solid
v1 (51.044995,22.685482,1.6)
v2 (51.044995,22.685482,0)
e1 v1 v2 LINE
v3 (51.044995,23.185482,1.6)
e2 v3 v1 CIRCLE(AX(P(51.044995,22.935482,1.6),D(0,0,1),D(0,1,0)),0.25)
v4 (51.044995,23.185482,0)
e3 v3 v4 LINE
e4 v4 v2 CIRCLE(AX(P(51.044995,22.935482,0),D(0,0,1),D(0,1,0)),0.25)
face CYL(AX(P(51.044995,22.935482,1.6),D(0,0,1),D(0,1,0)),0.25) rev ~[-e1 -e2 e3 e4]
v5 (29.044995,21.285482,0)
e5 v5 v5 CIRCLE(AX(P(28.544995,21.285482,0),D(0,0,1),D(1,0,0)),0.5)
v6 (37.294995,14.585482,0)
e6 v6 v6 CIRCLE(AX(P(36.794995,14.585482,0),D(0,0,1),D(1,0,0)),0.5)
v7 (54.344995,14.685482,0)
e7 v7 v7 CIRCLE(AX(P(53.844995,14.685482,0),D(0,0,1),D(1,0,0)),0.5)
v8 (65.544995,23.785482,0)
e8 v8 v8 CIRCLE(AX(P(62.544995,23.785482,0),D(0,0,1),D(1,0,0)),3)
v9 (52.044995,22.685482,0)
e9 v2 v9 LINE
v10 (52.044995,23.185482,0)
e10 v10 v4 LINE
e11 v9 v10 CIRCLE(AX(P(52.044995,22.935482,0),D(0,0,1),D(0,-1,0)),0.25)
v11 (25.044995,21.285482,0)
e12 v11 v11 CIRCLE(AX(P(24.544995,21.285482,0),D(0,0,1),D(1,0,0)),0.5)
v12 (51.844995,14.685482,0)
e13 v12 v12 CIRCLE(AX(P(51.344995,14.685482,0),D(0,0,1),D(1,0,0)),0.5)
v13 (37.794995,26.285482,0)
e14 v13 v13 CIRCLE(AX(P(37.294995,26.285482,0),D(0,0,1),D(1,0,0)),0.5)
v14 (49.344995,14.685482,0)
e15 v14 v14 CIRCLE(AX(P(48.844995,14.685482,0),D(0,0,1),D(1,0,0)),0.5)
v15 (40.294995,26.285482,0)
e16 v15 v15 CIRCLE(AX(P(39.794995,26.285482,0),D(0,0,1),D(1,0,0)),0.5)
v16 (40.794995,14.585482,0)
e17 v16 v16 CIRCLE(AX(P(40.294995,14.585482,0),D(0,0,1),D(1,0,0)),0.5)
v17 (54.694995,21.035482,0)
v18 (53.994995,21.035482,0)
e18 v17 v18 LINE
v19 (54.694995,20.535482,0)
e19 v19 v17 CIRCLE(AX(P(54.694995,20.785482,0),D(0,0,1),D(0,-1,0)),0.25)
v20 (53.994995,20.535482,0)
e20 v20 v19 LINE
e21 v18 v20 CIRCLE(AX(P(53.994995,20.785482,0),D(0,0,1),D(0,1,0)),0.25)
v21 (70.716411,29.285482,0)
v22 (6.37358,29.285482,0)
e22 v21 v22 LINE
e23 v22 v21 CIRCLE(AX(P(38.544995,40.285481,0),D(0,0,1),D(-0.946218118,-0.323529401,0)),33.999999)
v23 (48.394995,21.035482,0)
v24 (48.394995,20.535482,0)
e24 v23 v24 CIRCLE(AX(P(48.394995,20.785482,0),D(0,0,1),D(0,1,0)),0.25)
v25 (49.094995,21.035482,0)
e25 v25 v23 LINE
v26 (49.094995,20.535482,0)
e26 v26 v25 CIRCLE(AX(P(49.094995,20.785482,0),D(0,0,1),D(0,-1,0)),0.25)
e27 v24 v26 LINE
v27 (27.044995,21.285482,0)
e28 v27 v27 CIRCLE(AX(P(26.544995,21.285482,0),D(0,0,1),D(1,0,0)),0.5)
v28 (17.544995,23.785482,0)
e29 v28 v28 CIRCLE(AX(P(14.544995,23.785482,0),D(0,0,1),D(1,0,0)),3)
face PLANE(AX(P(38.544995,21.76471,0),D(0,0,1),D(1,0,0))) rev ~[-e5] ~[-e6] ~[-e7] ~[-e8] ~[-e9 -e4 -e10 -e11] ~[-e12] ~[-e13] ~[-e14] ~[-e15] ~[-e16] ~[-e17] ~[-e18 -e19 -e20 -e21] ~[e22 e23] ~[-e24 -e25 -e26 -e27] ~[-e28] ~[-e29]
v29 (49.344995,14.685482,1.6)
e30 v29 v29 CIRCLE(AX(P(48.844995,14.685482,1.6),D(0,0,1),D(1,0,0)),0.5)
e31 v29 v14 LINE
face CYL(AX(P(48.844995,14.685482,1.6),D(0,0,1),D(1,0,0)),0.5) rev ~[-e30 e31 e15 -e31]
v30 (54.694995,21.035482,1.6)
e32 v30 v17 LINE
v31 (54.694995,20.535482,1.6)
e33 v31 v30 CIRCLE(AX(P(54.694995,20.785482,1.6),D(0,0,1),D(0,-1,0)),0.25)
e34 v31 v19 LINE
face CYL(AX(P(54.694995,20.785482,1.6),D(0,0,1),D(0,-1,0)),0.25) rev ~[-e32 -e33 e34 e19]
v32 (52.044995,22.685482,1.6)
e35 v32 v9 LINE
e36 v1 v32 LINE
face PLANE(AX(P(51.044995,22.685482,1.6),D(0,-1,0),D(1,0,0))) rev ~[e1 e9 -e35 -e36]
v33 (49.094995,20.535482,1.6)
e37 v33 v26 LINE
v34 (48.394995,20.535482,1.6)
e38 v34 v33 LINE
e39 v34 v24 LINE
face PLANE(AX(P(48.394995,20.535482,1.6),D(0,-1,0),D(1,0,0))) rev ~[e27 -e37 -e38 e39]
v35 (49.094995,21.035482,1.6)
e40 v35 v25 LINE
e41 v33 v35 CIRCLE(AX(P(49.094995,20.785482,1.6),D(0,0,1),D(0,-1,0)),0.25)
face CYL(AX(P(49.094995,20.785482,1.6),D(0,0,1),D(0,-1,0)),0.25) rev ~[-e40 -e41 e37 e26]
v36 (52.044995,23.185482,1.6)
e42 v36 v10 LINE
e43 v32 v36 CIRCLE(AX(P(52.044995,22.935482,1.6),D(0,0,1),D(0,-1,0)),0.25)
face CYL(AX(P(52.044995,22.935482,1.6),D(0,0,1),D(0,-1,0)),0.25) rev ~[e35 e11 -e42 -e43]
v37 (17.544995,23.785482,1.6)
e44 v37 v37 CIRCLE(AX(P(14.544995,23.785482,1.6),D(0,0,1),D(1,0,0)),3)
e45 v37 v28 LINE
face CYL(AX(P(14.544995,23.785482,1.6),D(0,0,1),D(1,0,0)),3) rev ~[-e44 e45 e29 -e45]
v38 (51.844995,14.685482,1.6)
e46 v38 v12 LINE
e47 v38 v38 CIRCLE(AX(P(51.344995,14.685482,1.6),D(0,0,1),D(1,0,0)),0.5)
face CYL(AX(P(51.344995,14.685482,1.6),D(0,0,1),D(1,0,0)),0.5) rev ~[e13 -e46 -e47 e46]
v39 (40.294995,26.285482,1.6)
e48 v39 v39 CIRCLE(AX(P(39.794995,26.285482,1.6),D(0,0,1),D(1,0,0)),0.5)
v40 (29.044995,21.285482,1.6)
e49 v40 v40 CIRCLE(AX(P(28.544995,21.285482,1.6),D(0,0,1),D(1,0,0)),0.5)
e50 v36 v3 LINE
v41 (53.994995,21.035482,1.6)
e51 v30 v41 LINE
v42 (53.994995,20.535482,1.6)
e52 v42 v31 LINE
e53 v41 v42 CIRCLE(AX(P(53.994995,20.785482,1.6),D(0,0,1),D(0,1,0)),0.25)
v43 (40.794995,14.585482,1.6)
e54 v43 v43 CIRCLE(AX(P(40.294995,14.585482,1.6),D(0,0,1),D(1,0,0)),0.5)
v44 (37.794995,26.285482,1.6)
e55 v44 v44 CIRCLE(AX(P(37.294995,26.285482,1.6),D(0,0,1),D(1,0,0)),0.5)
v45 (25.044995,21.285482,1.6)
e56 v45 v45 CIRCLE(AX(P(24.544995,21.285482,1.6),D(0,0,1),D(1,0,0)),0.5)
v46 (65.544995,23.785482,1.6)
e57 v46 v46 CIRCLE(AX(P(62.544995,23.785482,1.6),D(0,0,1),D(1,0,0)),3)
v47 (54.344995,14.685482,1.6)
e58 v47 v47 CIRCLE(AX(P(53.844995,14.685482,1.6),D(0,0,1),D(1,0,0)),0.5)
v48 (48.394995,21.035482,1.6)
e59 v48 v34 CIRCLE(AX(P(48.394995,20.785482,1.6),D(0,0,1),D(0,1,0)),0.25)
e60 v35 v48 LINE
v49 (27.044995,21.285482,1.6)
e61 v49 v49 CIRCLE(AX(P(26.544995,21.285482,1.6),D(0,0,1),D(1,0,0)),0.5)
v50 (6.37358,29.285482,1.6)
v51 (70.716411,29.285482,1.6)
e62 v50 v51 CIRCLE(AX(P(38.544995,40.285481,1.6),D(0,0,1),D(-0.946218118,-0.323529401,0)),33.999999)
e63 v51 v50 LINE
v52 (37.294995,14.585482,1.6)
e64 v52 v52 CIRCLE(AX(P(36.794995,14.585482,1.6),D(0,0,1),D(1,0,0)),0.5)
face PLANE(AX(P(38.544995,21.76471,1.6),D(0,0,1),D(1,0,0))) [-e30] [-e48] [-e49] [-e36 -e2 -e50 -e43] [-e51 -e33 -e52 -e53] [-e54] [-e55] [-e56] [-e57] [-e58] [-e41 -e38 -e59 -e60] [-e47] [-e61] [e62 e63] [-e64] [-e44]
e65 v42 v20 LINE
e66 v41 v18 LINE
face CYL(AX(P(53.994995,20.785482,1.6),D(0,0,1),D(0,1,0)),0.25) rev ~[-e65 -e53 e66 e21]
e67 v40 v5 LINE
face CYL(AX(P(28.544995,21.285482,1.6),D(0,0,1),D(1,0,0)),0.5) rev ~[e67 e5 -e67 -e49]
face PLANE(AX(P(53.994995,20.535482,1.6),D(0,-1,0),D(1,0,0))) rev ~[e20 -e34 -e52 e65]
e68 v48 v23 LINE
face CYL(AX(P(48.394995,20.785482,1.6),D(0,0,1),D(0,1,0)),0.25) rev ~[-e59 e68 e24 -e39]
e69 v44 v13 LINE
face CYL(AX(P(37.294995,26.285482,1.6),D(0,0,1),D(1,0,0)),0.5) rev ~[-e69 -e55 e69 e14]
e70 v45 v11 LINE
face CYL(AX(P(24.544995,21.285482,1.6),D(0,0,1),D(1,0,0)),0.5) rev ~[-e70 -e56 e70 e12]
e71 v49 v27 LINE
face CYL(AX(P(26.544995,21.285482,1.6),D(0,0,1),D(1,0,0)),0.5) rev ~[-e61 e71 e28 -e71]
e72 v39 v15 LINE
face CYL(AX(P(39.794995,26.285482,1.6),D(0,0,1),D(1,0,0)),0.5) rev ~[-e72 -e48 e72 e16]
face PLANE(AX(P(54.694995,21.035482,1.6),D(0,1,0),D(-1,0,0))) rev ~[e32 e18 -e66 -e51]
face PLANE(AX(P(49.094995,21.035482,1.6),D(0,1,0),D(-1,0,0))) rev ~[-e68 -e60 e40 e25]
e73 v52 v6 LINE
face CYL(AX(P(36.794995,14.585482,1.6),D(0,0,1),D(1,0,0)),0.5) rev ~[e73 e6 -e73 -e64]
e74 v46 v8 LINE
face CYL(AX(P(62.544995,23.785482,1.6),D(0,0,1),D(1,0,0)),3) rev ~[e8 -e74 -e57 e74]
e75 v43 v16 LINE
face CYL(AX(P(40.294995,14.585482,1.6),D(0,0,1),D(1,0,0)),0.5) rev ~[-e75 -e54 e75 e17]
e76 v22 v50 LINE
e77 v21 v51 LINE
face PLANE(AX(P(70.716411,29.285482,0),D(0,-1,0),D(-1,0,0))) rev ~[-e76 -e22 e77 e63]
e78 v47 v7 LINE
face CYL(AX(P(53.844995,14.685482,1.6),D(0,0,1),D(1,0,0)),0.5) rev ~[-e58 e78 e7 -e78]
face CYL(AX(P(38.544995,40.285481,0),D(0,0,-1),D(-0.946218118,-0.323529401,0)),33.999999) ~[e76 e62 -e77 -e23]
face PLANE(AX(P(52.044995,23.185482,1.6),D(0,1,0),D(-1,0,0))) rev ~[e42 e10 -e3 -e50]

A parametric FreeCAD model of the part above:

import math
import FreeCAD as App
import Part
import Sketcher
from FreeCAD import Vector

doc = App.newDocument("Part")
body = doc.addObject("PartDesign::Body", "Body")

sketch1 = body.newObject("Sketcher::SketchObject", "Sketch")
sketch1.AttachmentSupport = (doc.getObject("XY_Plane"), [""])
sketch1.MapMode = "FlatFace"
sketch1.addGeometry(Part.LineSegment(Vector(71, 29, 0), Vector(6, 29, 0)), False)
sketch1.addGeometry(Part.ArcOfCircle(Part.Circle(Vector(39, 40, 0), Vector(0, 0, 1), 34), math.radians(-161), math.radians(-19)), False)
sketch1.addConstraint(Sketcher.Constraint("Coincident", 0, 1, 1, 2))
sketch1.addConstraint(Sketcher.Constraint("Coincident", 1, 1, 0, 2))
sketch1.addConstraint(Sketcher.Constraint("Horizontal", 0))
sketch1.addConstraint(Sketcher.Constraint("Radius", 1, 33.999999))
sketch1.addConstraint(Sketcher.Constraint("DistanceY", 0, 1, 1, 3, 10.999999))
sketch1.addConstraint(Sketcher.Constraint("DistanceY", -1, 1, 1, 3, 40.285481))
sketch1.addConstraint(Sketcher.Constraint("DistanceX", -1, 1, 0, 1, 70.716411))
pad1 = body.newObject("PartDesign::Pad", "Pad")
pad1.Profile = sketch1
pad1.Length = 1.6

sketch2 = body.newObject("Sketcher::SketchObject", "Sketch001")
sketch2.AttachmentSupport = (doc.getObject("XY_Plane"), [""])
sketch2.MapMode = "FlatFace"
sketch2.AttachmentOffset = App.Placement(Vector(0, 0, 1.6), App.Rotation())
sketch2.addGeometry(Part.Circle(Vector(14.5, 23.8, 0), Vector(0, 0, 1), 3), False)
sketch2.addGeometry(Part.Circle(Vector(62.5, 23.8, 0), Vector(0, 0, 1), 3), False)
sketch2.addConstraint(Sketcher.Constraint("Equal", 0, 1))
sketch2.addConstraint(Sketcher.Constraint("Horizontal", 0, 3, 1, 3))
sketch2.addConstraint(Sketcher.Constraint("Diameter", 0, 6.0))
sketch2.addConstraint(Sketcher.Constraint("DistanceX", 0, 3, 1, 3, 48.0))
sketch2.addConstraint(Sketcher.Constraint("DistanceY", -1, 1, 0, 3, 23.785482))
sketch2.addConstraint(Sketcher.Constraint("DistanceX", -1, 1, 0, 3, 14.544995))
pocket1 = body.newObject("PartDesign::Pocket", "Pocket")
pocket1.Profile = sketch2
pocket1.Length = 3

sketch3 = body.newObject("Sketcher::SketchObject", "Sketch002")
sketch3.AttachmentSupport = (doc.getObject("XY_Plane"), [""])
sketch3.MapMode = "FlatFace"
sketch3.AttachmentOffset = App.Placement(Vector(0, 0, 1.6), App.Rotation())
sketch3.addGeometry(Part.Circle(Vector(48.84, 14.69, 0), Vector(0, 0, 1), 0.5), False)
sketch3.addGeometry(Part.Circle(Vector(53.84, 14.69, 0), Vector(0, 0, 1), 0.5), False)
sketch3.addGeometry(Part.Circle(Vector(51.34, 14.69, 0), Vector(0, 0, 1), 0.5), False)
sketch3.addGeometry(Part.Circle(Vector(37.29, 26.29, 0), Vector(0, 0, 1), 0.5), False)
sketch3.addGeometry(Part.Circle(Vector(39.79, 26.29, 0), Vector(0, 0, 1), 0.5), False)
sketch3.addGeometry(Part.Circle(Vector(36.79, 14.59, 0), Vector(0, 0, 1), 0.5), False)
sketch3.addGeometry(Part.Circle(Vector(40.29, 14.59, 0), Vector(0, 0, 1), 0.5), False)
sketch3.addGeometry(Part.ArcOfCircle(Part.Circle(Vector(51.04, 22.94, 0), Vector(0, 0, 1), 0.25), math.radians(90), math.radians(270)), False)
sketch3.addGeometry(Part.LineSegment(Vector(51.04, 22.69, 0), Vector(52.04, 22.69, 0)), False)
sketch3.addGeometry(Part.ArcOfCircle(Part.Circle(Vector(52.04, 22.94, 0), Vector(0, 0, 1), 0.25), math.radians(-90), math.radians(90)), False)
sketch3.addGeometry(Part.LineSegment(Vector(52.04, 23.19, 0), Vector(51.04, 23.19, 0)), False)
sketch3.addGeometry(Part.ArcOfCircle(Part.Circle(Vector(49.09, 20.79, 0), Vector(0, 0, 1), 0.25), math.radians(-90), math.radians(90)), False)
sketch3.addGeometry(Part.LineSegment(Vector(49.09, 21.04, 0), Vector(48.39, 21.04, 0)), False)
sketch3.addGeometry(Part.ArcOfCircle(Part.Circle(Vector(48.39, 20.79, 0), Vector(0, 0, 1), 0.25), math.radians(90), math.radians(270)), False)
sketch3.addGeometry(Part.LineSegment(Vector(48.39, 20.54, 0), Vector(49.09, 20.54, 0)), False)
sketch3.addGeometry(Part.LineSegment(Vector(53.99, 20.54, 0), Vector(54.69, 20.54, 0)), False)
sketch3.addGeometry(Part.ArcOfCircle(Part.Circle(Vector(54.69, 20.79, 0), Vector(0, 0, 1), 0.25), math.radians(-90), math.radians(90)), False)
sketch3.addGeometry(Part.LineSegment(Vector(54.69, 21.04, 0), Vector(53.99, 21.04, 0)), False)
sketch3.addGeometry(Part.ArcOfCircle(Part.Circle(Vector(53.99, 20.79, 0), Vector(0, 0, 1), 0.25), math.radians(90), math.radians(270)), False)
sketch3.addGeometry(Part.Circle(Vector(24.54, 21.29, 0), Vector(0, 0, 1), 0.5), False)
sketch3.addGeometry(Part.Circle(Vector(26.54, 21.29, 0), Vector(0, 0, 1), 0.5), False)
sketch3.addGeometry(Part.Circle(Vector(28.54, 21.29, 0), Vector(0, 0, 1), 0.5), False)
sketch3.addConstraint(Sketcher.Constraint("Tangent", 7, 2, 8, 1))
sketch3.addConstraint(Sketcher.Constraint("Tangent", 8, 2, 9, 1))
sketch3.addConstraint(Sketcher.Constraint("Tangent", 9, 2, 10, 1))
sketch3.addConstraint(Sketcher.Constraint("Tangent", 10, 2, 7, 1))
sketch3.addConstraint(Sketcher.Constraint("Tangent", 11, 2, 12, 1))
sketch3.addConstraint(Sketcher.Constraint("Tangent", 12, 2, 13, 1))
sketch3.addConstraint(Sketcher.Constraint("Tangent", 13, 2, 14, 1))
sketch3.addConstraint(Sketcher.Constraint("Tangent", 14, 2, 11, 1))
sketch3.addConstraint(Sketcher.Constraint("Tangent", 15, 2, 16, 1))
sketch3.addConstraint(Sketcher.Constraint("Tangent", 16, 2, 17, 1))
sketch3.addConstraint(Sketcher.Constraint("Tangent", 17, 2, 18, 1))
sketch3.addConstraint(Sketcher.Constraint("Tangent", 18, 2, 15, 1))
sketch3.addConstraint(Sketcher.Constraint("Horizontal", 8))
sketch3.addConstraint(Sketcher.Constraint("Horizontal", 10))
sketch3.addConstraint(Sketcher.Constraint("Horizontal", 12))
sketch3.addConstraint(Sketcher.Constraint("Horizontal", 14))
sketch3.addConstraint(Sketcher.Constraint("Horizontal", 15))
sketch3.addConstraint(Sketcher.Constraint("Horizontal", 17))
sketch3.addConstraint(Sketcher.Constraint("Equal", 0, 1))
sketch3.addConstraint(Sketcher.Constraint("Equal", 1, 2))
sketch3.addConstraint(Sketcher.Constraint("Equal", 2, 3))
sketch3.addConstraint(Sketcher.Constraint("Equal", 3, 4))
sketch3.addConstraint(Sketcher.Constraint("Equal", 4, 5))
sketch3.addConstraint(Sketcher.Constraint("Equal", 5, 6))
sketch3.addConstraint(Sketcher.Constraint("Equal", 9, 11))
sketch3.addConstraint(Sketcher.Constraint("Equal", 13, 16))
sketch3.addConstraint(Sketcher.Constraint("Equal", 6, 19))
sketch3.addConstraint(Sketcher.Constraint("Equal", 19, 20))
sketch3.addConstraint(Sketcher.Constraint("Equal", 20, 21))
sketch3.addConstraint(Sketcher.Constraint("Horizontal", 0, 3, 1, 3))
sketch3.addConstraint(Sketcher.Constraint("Horizontal", 1, 3, 2, 3))
sketch3.addConstraint(Sketcher.Constraint("Horizontal", 3, 3, 4, 3))
sketch3.addConstraint(Sketcher.Constraint("Horizontal", 5, 3, 6, 3))
sketch3.addConstraint(Sketcher.Constraint("Horizontal", 13, 3, 16, 3))
sketch3.addConstraint(Sketcher.Constraint("Horizontal", 19, 3, 20, 3))
sketch3.addConstraint(Sketcher.Constraint("Horizontal", 20, 3, 21, 3))
sketch3.addConstraint(Sketcher.Constraint("Equal", 14, 15))
sketch3.addConstraint(Sketcher.Constraint("Diameter", 0, 1.0))
sketch3.addConstraint(Sketcher.Constraint("DistanceX", 8, 1, 8, 2, 1.0))
sketch3.addConstraint(Sketcher.Constraint("Radius", 7, 0.25))
sketch3.addConstraint(Sketcher.Constraint("DistanceX", 12, 2, 12, 1, 0.7))
sketch3.addConstraint(Sketcher.Constraint("DistanceX", 0, 3, 1, 3, 5.0))
sketch3.addConstraint(Sketcher.Constraint("DistanceX", 5, 3, 4, 3, 3.0))
sketch3.addConstraint(Sketcher.Constraint("DistanceX", 3, 3, 6, 3, 3.0))
sketch3.addConstraint(Sketcher.Constraint("DistanceY", 19, 3, 3, 3, 5.0))
sketch3.addConstraint(Sketcher.Constraint("DistanceX", 19, 3, 20, 3, 2.0))
sketch3.addConstraint(Sketcher.Constraint("DistanceX", 20, 3, 21, 3, 2.0))
sketch3.addConstraint(Sketcher.Constraint("DistanceX", 0, 3, 2, 3, 2.5))
sketch3.addConstraint(Sketcher.Constraint("DistanceY", 0, 3, 3, 3, 11.6))
sketch3.addConstraint(Sketcher.Constraint("DistanceX", 3, 3, 4, 3, 2.5))
sketch3.addConstraint(Sketcher.Constraint("DistanceY", 5, 3, 3, 3, 11.7))
sketch3.addConstraint(Sketcher.Constraint("DistanceX", 7, 3, 2, 3, 0.3))
sketch3.addConstraint(Sketcher.Constraint("DistanceY", 0, 3, 11, 3, 6.1))
sketch3.addConstraint(Sketcher.Constraint("DistanceX", 11, 3, 16, 3, 5.6))
sketch3.addConstraint(Sketcher.Constraint("DistanceY", 11, 3, 7, 2, 1.9))
sketch3.addConstraint(Sketcher.Constraint("DistanceX", 3, 3, 0, 3, 11.55))
sketch3.addConstraint(Sketcher.Constraint("DistanceX", 11, 3, 7, 3, 1.95))
sketch3.addConstraint(Sketcher.Constraint("DistanceX", 19, 3, 3, 3, 12.75))
sketch3.addConstraint(Sketcher.Constraint("DistanceY", -1, 1, 3, 3, 26.285482))
sketch3.addConstraint(Sketcher.Constraint("DistanceX", -1, 1, 0, 3, 48.844995))
pocket2 = body.newObject("PartDesign::Pocket", "Pocket001")
pocket2.Profile = sketch3
pocket2.Length = 4

sketch4 = body.newObject("Sketcher::SketchObject", "Sketch003")
sketch4.AttachmentSupport = (doc.getObject("XY_Plane"), [""])
sketch4.MapMode = "FlatFace"
sketch4.addGeometry(Part.Circle(Vector(62.5, 23.8, 0), Vector(0, 0, 1), 2.1), False)
sketch4.addGeometry(Part.Circle(Vector(14.5, 23.8, 0), Vector(0, 0, 1), 2.1), False)
sketch4.addConstraint(Sketcher.Constraint("Equal", 0, 1))
sketch4.addConstraint(Sketcher.Constraint("Horizontal", 0, 3, 1, 3))
sketch4.addConstraint(Sketcher.Constraint("Diameter", 0, 4.2))
sketch4.addConstraint(Sketcher.Constraint("DistanceX", 1, 3, 0, 3, 48.0))
sketch4.addConstraint(Sketcher.Constraint("DistanceY", -1, 1, 0, 3, 23.785482))
sketch4.addConstraint(Sketcher.Constraint("DistanceX", -1, 1, 0, 3, 62.544995))
pocket3 = body.newObject("PartDesign::Pocket", "Pocket002")
pocket3.Profile = sketch4
pocket3.Length = 0.2
pocket3.Reversed = True

doc.recompute()
